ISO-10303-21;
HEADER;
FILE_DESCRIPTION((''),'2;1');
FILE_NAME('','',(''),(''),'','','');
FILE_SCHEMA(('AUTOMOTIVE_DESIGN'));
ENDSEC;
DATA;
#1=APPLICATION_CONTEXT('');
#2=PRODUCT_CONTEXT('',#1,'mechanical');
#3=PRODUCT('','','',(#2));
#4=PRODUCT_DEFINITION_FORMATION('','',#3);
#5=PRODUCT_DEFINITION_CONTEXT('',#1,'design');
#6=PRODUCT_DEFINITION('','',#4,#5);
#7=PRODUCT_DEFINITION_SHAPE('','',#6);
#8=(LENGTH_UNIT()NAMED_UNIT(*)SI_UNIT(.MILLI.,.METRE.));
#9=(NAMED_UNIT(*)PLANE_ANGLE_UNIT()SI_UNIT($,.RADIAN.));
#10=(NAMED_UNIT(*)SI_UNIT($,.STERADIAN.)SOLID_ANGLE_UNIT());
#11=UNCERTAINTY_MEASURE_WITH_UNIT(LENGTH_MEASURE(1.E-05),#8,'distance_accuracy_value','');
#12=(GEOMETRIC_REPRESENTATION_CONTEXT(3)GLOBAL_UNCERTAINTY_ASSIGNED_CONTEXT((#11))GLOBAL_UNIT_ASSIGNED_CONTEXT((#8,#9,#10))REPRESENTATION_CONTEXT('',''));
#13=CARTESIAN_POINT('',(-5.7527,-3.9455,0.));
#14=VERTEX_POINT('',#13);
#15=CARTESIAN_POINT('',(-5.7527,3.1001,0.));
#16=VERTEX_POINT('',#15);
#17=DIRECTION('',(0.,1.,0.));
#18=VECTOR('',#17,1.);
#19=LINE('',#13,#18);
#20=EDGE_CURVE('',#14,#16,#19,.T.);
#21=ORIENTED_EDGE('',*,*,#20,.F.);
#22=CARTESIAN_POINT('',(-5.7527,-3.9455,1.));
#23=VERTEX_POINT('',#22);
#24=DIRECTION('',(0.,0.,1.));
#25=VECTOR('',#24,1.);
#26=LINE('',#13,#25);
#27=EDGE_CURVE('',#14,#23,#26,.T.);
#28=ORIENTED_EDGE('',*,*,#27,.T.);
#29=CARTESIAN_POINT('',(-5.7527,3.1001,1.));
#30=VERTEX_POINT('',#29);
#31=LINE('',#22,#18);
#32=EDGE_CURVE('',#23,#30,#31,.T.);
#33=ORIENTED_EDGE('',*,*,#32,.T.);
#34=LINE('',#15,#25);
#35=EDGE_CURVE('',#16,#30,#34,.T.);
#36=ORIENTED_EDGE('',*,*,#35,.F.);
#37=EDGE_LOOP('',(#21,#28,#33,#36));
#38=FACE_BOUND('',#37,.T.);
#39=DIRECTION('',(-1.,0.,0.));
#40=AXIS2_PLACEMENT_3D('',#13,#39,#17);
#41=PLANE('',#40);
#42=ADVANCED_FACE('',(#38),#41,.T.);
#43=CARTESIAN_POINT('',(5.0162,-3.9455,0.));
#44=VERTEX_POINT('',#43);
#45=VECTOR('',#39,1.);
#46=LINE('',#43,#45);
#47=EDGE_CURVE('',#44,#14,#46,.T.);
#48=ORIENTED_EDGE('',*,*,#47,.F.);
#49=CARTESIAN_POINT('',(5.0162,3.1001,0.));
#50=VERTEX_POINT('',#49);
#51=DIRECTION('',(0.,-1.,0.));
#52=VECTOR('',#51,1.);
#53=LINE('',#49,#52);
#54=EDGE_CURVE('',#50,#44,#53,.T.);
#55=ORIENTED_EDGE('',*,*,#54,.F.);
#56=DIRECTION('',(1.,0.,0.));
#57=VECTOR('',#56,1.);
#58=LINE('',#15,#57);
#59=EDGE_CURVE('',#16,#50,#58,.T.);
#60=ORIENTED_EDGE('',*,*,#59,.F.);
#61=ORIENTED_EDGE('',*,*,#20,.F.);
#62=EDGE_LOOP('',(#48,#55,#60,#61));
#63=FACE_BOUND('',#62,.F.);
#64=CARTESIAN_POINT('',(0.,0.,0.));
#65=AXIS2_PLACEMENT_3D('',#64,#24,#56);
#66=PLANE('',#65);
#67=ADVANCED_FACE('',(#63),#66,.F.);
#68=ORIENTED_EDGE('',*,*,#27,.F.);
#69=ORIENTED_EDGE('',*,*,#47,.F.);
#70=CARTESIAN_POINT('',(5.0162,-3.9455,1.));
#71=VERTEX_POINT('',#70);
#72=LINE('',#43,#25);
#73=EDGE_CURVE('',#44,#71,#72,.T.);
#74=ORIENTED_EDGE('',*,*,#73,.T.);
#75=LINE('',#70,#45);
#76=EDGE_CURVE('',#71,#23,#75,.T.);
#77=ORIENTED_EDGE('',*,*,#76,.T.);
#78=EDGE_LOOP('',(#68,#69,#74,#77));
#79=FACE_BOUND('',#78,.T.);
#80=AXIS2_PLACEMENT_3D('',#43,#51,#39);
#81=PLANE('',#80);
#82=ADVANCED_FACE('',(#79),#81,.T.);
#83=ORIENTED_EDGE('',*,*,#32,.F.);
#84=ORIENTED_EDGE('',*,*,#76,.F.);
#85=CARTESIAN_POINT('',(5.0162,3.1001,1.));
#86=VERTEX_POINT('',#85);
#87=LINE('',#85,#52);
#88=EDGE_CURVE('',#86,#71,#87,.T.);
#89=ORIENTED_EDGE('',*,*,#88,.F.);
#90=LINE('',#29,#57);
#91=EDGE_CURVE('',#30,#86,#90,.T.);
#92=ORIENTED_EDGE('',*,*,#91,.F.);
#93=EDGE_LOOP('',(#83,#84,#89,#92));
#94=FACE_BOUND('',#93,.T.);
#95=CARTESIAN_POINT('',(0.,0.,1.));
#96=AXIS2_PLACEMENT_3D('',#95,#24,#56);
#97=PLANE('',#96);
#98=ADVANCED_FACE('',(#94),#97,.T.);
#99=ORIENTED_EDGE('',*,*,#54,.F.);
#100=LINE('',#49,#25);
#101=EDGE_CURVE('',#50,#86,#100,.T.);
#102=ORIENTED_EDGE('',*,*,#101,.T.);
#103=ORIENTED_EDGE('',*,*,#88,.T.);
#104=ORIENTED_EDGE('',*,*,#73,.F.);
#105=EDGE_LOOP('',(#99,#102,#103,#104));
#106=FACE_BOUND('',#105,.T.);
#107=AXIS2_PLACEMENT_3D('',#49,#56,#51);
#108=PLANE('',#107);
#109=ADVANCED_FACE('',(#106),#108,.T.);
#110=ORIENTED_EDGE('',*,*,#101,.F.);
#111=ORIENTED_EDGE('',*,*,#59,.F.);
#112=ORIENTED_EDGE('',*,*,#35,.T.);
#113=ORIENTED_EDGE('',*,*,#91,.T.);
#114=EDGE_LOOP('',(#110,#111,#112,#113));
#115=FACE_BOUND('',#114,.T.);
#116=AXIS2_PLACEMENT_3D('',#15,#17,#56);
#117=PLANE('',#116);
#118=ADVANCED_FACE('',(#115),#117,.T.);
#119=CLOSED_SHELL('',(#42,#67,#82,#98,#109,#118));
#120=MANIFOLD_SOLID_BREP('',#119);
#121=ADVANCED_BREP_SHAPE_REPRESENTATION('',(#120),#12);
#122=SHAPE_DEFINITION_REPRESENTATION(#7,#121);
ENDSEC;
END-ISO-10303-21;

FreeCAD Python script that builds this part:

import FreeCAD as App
import Part
import Sketcher

V = App.Vector
Q = App.Units.Quantity


def add_polygon(sketch, points):
    """Adds a closed chain of lines whose ends are joined by coincident constraints."""
    first, n = sketch.GeometryCount, len(points)
    for a, b in zip(points, points[1:] + points[:1]):
        sketch.addGeometry(Part.LineSegment(App.Vector(*a, 0), App.Vector(*b, 0)), False)
    for i in range(n):
        sketch.addConstraint(Sketcher.Constraint("Coincident", first + i, 2, first + (i + 1) % n, 1))

doc = App.newDocument("Part")
body = doc.addObject("PartDesign::Body", "Body")

sketch1 = body.newObject("Sketcher::SketchObject", "Sketch")
sketch1.AttachmentSupport = (doc.getObject("XY_Plane"), [""])
sketch1.MapMode = "FlatFace"
add_polygon(sketch1, [(5, 3), (-6, 3), (-6, -4), (5, -4)])
sketch1.addConstraint([
    Sketcher.Constraint("Horizontal", 0),
    Sketcher.Constraint("Vertical", 1),
    Sketcher.Constraint("Horizontal", 2),
    Sketcher.Constraint("Vertical", 3),
    Sketcher.Constraint("DistanceY", -1, 1, 0, 2, Q("3.1 mm")),
    Sketcher.Constraint("DistanceX", 0, 2, 0, 1, Q("10.769 mm")),
    Sketcher.Constraint("DistanceY", 1, 2, 1, 1, Q("7.0456 mm")),
    Sketcher.Constraint("DistanceX", 0, 2, -1, 1, Q("5.7527 mm")),
])
pad1 = body.newObject("PartDesign::Pad", "Pad")
pad1.Profile = sketch1
pad1.Length = 1

doc.recompute()
